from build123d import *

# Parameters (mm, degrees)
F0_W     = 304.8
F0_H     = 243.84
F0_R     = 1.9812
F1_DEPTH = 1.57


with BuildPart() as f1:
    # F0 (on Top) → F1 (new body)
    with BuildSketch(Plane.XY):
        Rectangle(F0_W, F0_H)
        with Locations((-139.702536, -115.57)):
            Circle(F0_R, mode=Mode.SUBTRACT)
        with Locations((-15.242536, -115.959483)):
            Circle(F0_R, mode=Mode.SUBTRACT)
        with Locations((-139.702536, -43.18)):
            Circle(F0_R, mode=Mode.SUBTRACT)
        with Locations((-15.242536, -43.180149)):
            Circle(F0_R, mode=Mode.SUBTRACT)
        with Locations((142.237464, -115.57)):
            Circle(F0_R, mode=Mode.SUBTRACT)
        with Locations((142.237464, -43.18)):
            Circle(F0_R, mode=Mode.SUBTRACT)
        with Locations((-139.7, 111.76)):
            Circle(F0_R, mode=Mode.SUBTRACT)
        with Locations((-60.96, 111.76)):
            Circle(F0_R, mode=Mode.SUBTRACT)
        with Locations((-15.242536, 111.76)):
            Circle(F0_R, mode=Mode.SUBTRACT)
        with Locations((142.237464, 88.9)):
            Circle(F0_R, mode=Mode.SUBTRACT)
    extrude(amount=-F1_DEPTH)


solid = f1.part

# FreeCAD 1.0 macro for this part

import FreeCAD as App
import Part
import Sketcher
Q = App.Units.Quantity


def add_polygon(sketch, points):
    """Adds a closed chain of lines whose ends are joined by coincident constraints."""
    first, n = sketch.GeometryCount, len(points)
    for a, b in zip(points, points[1:] + points[:1]):
        sketch.addGeometry(Part.LineSegment(App.Vector(*a, 0), App.Vector(*b, 0)), False)
    for i in range(n):
        sketch.addConstraint(Sketcher.Constraint("Coincident", first + i, 2, first + (i + 1) % n, 1))

doc = App.newDocument("Part")
body = doc.addObject("PartDesign::Body", "Body")

# Sketch on XY plane
sketch1 = body.newObject("Sketcher::SketchObject", "Sketch")
sketch1.AttachmentSupport = (doc.getObject("XY_Plane"), [""])
sketch1.MapMode = "FlatFace"
add_polygon(sketch1, [(-152.4, 121.92), (-152.4, -121.92), (152.4, -121.92), (152.4, 121.92)])  # lines 0-3
sketch1.addGeometry(Part.Circle(App.Vector(-139.702536, -115.57, 0), App.Vector(0, 0, 1), 1.9812), False)  # 4
sketch1.addGeometry(Part.Circle(App.Vector(-15.242536, -115.959483, 0), App.Vector(0, 0, 1), 1.9812), False)  # 5
sketch1.addGeometry(Part.Circle(App.Vector(-139.702536, -43.18, 0), App.Vector(0, 0, 1), 1.9812), False)  # 6
sketch1.addGeometry(Part.Circle(App.Vector(-15.242536, -43.180149, 0), App.Vector(0, 0, 1), 1.9812), False)  # 7
sketch1.addGeometry(Part.Circle(App.Vector(142.237464, -115.57, 0), App.Vector(0, 0, 1), 1.9812), False)  # 8
sketch1.addGeometry(Part.Circle(App.Vector(142.237464, -43.18, 0), App.Vector(0, 0, 1), 1.9812), False)  # 9
sketch1.addGeometry(Part.Circle(App.Vector(-139.7, 111.76, 0), App.Vector(0, 0, 1), 1.9812), False)  # 10
sketch1.addGeometry(Part.Circle(App.Vector(-60.96, 111.76, 0), App.Vector(0, 0, 1), 1.9812), False)  # 11
sketch1.addGeometry(Part.Circle(App.Vector(-15.242536, 111.76, 0), App.Vector(0, 0, 1), 1.9812), False)  # 12
sketch1.addGeometry(Part.Circle(App.Vector(142.237464, 88.9, 0), App.Vector(0, 0, 1), 1.9812), False)  # 13
sketch1.addConstraint(Sketcher.Constraint("Vertical", 0))
sketch1.addConstraint(Sketcher.Constraint("Horizontal", 1))
sketch1.addConstraint(Sketcher.Constraint("Vertical", 2))
sketch1.addConstraint(Sketcher.Constraint("Horizontal", 3))
sketch1.addConstraint(Sketcher.Constraint("Equal", 4, 5))
sketch1.addConstraint(Sketcher.Constraint("Equal", 5, 6))
sketch1.addConstraint(Sketcher.Constraint("Equal", 6, 7))
sketch1.addConstraint(Sketcher.Constraint("Equal", 7, 8))
sketch1.addConstraint(Sketcher.Constraint("Equal", 8, 9))
sketch1.addConstraint(Sketcher.Constraint("Equal", 9, 10))
sketch1.addConstraint(Sketcher.Constraint("Equal", 10, 11))
sketch1.addConstraint(Sketcher.Constraint("Equal", 11, 12))
sketch1.addConstraint(Sketcher.Constraint("Equal", 12, 13))
sketch1.addConstraint(Sketcher.Constraint("Symmetric", 0, 2, 2, 2, -1, 1))
sketch1.addConstraint(Sketcher.Constraint("Horizontal", 4, 3, 8, 3))
sketch1.addConstraint(Sketcher.Constraint("Horizontal", 6, 3, 9, 3))
sketch1.addConstraint(Sketcher.Constraint("Horizontal", 10, 3, 11, 3))
sketch1.addConstraint(Sketcher.Constraint("Horizontal", 11, 3, 12, 3))
sketch1.addConstraint(Sketcher.Constraint("Vertical", 4, 3, 6, 3))
sketch1.addConstraint(Sketcher.Constraint("Vertical", 5, 3, 7, 3))
sketch1.addConstraint(Sketcher.Constraint("Vertical", 8, 3, 9, 3))
sketch1.addConstraint(Sketcher.Constraint("Vertical", 7, 3, 12, 3))
sketch1.addConstraint(Sketcher.Constraint("Vertical", 9, 3, 13, 3))
sketch1.addConstraint(Sketcher.Constraint("DistanceX", 1, 1, 1, 2, Q("12 in")))
sketch1.addConstraint(Sketcher.Constraint("Diameter", 4, Q("0.156 in")))
sketch1.addConstraint(Sketcher.Constraint("DistanceY", 0, 2, 0, 1, Q("9.6 in")))
sketch1.addConstraint(Sketcher.Constraint("DistanceY", 6, 3, -1, 1, Q("1.7 in")))
sketch1.addConstraint(Sketcher.Constraint("DistanceX", 10, 3, -1, 1, Q("5.5 in")))
sketch1.addConstraint(Sketcher.Constraint("DistanceY", -1, 1, 10, 3, Q("4.4 in")))
sketch1.addConstraint(Sketcher.Constraint("DistanceX", 11, 3, -1, 1, Q("2.4 in")))
sketch1.addConstraint(Sketcher.Constraint("DistanceY", -1, 1, 13, 3, Q("3.5 in")))
sketch1.addConstraint(Sketcher.Constraint("DistanceX", 4, 3, 5, 3, Q("4.9 in")))
sketch1.addConstraint(Sketcher.Constraint("DistanceX", 5, 3, 8, 3, Q("6.2 in")))
sketch1.addConstraint(Sketcher.Constraint("DistanceY", 4, 3, -1, 1, Q("4.55 in")))
sketch1.addConstraint(Sketcher.Constraint("DistanceX", 4, 3, -1, 1, Q("5.5000998 in")))
sketch1.addConstraint(Sketcher.Constraint("DistanceY", 7, 3, -1, 1, 43.180149))
sketch1.addConstraint(Sketcher.Constraint("DistanceY", 5, 3, -1, 1, 115.959483))
pad1 = body.newObject("PartDesign::Pad", "Pad")
pad1.Profile = sketch1
pad1.Length = 1.57
pad1.Reversed = True

doc.recompute()
